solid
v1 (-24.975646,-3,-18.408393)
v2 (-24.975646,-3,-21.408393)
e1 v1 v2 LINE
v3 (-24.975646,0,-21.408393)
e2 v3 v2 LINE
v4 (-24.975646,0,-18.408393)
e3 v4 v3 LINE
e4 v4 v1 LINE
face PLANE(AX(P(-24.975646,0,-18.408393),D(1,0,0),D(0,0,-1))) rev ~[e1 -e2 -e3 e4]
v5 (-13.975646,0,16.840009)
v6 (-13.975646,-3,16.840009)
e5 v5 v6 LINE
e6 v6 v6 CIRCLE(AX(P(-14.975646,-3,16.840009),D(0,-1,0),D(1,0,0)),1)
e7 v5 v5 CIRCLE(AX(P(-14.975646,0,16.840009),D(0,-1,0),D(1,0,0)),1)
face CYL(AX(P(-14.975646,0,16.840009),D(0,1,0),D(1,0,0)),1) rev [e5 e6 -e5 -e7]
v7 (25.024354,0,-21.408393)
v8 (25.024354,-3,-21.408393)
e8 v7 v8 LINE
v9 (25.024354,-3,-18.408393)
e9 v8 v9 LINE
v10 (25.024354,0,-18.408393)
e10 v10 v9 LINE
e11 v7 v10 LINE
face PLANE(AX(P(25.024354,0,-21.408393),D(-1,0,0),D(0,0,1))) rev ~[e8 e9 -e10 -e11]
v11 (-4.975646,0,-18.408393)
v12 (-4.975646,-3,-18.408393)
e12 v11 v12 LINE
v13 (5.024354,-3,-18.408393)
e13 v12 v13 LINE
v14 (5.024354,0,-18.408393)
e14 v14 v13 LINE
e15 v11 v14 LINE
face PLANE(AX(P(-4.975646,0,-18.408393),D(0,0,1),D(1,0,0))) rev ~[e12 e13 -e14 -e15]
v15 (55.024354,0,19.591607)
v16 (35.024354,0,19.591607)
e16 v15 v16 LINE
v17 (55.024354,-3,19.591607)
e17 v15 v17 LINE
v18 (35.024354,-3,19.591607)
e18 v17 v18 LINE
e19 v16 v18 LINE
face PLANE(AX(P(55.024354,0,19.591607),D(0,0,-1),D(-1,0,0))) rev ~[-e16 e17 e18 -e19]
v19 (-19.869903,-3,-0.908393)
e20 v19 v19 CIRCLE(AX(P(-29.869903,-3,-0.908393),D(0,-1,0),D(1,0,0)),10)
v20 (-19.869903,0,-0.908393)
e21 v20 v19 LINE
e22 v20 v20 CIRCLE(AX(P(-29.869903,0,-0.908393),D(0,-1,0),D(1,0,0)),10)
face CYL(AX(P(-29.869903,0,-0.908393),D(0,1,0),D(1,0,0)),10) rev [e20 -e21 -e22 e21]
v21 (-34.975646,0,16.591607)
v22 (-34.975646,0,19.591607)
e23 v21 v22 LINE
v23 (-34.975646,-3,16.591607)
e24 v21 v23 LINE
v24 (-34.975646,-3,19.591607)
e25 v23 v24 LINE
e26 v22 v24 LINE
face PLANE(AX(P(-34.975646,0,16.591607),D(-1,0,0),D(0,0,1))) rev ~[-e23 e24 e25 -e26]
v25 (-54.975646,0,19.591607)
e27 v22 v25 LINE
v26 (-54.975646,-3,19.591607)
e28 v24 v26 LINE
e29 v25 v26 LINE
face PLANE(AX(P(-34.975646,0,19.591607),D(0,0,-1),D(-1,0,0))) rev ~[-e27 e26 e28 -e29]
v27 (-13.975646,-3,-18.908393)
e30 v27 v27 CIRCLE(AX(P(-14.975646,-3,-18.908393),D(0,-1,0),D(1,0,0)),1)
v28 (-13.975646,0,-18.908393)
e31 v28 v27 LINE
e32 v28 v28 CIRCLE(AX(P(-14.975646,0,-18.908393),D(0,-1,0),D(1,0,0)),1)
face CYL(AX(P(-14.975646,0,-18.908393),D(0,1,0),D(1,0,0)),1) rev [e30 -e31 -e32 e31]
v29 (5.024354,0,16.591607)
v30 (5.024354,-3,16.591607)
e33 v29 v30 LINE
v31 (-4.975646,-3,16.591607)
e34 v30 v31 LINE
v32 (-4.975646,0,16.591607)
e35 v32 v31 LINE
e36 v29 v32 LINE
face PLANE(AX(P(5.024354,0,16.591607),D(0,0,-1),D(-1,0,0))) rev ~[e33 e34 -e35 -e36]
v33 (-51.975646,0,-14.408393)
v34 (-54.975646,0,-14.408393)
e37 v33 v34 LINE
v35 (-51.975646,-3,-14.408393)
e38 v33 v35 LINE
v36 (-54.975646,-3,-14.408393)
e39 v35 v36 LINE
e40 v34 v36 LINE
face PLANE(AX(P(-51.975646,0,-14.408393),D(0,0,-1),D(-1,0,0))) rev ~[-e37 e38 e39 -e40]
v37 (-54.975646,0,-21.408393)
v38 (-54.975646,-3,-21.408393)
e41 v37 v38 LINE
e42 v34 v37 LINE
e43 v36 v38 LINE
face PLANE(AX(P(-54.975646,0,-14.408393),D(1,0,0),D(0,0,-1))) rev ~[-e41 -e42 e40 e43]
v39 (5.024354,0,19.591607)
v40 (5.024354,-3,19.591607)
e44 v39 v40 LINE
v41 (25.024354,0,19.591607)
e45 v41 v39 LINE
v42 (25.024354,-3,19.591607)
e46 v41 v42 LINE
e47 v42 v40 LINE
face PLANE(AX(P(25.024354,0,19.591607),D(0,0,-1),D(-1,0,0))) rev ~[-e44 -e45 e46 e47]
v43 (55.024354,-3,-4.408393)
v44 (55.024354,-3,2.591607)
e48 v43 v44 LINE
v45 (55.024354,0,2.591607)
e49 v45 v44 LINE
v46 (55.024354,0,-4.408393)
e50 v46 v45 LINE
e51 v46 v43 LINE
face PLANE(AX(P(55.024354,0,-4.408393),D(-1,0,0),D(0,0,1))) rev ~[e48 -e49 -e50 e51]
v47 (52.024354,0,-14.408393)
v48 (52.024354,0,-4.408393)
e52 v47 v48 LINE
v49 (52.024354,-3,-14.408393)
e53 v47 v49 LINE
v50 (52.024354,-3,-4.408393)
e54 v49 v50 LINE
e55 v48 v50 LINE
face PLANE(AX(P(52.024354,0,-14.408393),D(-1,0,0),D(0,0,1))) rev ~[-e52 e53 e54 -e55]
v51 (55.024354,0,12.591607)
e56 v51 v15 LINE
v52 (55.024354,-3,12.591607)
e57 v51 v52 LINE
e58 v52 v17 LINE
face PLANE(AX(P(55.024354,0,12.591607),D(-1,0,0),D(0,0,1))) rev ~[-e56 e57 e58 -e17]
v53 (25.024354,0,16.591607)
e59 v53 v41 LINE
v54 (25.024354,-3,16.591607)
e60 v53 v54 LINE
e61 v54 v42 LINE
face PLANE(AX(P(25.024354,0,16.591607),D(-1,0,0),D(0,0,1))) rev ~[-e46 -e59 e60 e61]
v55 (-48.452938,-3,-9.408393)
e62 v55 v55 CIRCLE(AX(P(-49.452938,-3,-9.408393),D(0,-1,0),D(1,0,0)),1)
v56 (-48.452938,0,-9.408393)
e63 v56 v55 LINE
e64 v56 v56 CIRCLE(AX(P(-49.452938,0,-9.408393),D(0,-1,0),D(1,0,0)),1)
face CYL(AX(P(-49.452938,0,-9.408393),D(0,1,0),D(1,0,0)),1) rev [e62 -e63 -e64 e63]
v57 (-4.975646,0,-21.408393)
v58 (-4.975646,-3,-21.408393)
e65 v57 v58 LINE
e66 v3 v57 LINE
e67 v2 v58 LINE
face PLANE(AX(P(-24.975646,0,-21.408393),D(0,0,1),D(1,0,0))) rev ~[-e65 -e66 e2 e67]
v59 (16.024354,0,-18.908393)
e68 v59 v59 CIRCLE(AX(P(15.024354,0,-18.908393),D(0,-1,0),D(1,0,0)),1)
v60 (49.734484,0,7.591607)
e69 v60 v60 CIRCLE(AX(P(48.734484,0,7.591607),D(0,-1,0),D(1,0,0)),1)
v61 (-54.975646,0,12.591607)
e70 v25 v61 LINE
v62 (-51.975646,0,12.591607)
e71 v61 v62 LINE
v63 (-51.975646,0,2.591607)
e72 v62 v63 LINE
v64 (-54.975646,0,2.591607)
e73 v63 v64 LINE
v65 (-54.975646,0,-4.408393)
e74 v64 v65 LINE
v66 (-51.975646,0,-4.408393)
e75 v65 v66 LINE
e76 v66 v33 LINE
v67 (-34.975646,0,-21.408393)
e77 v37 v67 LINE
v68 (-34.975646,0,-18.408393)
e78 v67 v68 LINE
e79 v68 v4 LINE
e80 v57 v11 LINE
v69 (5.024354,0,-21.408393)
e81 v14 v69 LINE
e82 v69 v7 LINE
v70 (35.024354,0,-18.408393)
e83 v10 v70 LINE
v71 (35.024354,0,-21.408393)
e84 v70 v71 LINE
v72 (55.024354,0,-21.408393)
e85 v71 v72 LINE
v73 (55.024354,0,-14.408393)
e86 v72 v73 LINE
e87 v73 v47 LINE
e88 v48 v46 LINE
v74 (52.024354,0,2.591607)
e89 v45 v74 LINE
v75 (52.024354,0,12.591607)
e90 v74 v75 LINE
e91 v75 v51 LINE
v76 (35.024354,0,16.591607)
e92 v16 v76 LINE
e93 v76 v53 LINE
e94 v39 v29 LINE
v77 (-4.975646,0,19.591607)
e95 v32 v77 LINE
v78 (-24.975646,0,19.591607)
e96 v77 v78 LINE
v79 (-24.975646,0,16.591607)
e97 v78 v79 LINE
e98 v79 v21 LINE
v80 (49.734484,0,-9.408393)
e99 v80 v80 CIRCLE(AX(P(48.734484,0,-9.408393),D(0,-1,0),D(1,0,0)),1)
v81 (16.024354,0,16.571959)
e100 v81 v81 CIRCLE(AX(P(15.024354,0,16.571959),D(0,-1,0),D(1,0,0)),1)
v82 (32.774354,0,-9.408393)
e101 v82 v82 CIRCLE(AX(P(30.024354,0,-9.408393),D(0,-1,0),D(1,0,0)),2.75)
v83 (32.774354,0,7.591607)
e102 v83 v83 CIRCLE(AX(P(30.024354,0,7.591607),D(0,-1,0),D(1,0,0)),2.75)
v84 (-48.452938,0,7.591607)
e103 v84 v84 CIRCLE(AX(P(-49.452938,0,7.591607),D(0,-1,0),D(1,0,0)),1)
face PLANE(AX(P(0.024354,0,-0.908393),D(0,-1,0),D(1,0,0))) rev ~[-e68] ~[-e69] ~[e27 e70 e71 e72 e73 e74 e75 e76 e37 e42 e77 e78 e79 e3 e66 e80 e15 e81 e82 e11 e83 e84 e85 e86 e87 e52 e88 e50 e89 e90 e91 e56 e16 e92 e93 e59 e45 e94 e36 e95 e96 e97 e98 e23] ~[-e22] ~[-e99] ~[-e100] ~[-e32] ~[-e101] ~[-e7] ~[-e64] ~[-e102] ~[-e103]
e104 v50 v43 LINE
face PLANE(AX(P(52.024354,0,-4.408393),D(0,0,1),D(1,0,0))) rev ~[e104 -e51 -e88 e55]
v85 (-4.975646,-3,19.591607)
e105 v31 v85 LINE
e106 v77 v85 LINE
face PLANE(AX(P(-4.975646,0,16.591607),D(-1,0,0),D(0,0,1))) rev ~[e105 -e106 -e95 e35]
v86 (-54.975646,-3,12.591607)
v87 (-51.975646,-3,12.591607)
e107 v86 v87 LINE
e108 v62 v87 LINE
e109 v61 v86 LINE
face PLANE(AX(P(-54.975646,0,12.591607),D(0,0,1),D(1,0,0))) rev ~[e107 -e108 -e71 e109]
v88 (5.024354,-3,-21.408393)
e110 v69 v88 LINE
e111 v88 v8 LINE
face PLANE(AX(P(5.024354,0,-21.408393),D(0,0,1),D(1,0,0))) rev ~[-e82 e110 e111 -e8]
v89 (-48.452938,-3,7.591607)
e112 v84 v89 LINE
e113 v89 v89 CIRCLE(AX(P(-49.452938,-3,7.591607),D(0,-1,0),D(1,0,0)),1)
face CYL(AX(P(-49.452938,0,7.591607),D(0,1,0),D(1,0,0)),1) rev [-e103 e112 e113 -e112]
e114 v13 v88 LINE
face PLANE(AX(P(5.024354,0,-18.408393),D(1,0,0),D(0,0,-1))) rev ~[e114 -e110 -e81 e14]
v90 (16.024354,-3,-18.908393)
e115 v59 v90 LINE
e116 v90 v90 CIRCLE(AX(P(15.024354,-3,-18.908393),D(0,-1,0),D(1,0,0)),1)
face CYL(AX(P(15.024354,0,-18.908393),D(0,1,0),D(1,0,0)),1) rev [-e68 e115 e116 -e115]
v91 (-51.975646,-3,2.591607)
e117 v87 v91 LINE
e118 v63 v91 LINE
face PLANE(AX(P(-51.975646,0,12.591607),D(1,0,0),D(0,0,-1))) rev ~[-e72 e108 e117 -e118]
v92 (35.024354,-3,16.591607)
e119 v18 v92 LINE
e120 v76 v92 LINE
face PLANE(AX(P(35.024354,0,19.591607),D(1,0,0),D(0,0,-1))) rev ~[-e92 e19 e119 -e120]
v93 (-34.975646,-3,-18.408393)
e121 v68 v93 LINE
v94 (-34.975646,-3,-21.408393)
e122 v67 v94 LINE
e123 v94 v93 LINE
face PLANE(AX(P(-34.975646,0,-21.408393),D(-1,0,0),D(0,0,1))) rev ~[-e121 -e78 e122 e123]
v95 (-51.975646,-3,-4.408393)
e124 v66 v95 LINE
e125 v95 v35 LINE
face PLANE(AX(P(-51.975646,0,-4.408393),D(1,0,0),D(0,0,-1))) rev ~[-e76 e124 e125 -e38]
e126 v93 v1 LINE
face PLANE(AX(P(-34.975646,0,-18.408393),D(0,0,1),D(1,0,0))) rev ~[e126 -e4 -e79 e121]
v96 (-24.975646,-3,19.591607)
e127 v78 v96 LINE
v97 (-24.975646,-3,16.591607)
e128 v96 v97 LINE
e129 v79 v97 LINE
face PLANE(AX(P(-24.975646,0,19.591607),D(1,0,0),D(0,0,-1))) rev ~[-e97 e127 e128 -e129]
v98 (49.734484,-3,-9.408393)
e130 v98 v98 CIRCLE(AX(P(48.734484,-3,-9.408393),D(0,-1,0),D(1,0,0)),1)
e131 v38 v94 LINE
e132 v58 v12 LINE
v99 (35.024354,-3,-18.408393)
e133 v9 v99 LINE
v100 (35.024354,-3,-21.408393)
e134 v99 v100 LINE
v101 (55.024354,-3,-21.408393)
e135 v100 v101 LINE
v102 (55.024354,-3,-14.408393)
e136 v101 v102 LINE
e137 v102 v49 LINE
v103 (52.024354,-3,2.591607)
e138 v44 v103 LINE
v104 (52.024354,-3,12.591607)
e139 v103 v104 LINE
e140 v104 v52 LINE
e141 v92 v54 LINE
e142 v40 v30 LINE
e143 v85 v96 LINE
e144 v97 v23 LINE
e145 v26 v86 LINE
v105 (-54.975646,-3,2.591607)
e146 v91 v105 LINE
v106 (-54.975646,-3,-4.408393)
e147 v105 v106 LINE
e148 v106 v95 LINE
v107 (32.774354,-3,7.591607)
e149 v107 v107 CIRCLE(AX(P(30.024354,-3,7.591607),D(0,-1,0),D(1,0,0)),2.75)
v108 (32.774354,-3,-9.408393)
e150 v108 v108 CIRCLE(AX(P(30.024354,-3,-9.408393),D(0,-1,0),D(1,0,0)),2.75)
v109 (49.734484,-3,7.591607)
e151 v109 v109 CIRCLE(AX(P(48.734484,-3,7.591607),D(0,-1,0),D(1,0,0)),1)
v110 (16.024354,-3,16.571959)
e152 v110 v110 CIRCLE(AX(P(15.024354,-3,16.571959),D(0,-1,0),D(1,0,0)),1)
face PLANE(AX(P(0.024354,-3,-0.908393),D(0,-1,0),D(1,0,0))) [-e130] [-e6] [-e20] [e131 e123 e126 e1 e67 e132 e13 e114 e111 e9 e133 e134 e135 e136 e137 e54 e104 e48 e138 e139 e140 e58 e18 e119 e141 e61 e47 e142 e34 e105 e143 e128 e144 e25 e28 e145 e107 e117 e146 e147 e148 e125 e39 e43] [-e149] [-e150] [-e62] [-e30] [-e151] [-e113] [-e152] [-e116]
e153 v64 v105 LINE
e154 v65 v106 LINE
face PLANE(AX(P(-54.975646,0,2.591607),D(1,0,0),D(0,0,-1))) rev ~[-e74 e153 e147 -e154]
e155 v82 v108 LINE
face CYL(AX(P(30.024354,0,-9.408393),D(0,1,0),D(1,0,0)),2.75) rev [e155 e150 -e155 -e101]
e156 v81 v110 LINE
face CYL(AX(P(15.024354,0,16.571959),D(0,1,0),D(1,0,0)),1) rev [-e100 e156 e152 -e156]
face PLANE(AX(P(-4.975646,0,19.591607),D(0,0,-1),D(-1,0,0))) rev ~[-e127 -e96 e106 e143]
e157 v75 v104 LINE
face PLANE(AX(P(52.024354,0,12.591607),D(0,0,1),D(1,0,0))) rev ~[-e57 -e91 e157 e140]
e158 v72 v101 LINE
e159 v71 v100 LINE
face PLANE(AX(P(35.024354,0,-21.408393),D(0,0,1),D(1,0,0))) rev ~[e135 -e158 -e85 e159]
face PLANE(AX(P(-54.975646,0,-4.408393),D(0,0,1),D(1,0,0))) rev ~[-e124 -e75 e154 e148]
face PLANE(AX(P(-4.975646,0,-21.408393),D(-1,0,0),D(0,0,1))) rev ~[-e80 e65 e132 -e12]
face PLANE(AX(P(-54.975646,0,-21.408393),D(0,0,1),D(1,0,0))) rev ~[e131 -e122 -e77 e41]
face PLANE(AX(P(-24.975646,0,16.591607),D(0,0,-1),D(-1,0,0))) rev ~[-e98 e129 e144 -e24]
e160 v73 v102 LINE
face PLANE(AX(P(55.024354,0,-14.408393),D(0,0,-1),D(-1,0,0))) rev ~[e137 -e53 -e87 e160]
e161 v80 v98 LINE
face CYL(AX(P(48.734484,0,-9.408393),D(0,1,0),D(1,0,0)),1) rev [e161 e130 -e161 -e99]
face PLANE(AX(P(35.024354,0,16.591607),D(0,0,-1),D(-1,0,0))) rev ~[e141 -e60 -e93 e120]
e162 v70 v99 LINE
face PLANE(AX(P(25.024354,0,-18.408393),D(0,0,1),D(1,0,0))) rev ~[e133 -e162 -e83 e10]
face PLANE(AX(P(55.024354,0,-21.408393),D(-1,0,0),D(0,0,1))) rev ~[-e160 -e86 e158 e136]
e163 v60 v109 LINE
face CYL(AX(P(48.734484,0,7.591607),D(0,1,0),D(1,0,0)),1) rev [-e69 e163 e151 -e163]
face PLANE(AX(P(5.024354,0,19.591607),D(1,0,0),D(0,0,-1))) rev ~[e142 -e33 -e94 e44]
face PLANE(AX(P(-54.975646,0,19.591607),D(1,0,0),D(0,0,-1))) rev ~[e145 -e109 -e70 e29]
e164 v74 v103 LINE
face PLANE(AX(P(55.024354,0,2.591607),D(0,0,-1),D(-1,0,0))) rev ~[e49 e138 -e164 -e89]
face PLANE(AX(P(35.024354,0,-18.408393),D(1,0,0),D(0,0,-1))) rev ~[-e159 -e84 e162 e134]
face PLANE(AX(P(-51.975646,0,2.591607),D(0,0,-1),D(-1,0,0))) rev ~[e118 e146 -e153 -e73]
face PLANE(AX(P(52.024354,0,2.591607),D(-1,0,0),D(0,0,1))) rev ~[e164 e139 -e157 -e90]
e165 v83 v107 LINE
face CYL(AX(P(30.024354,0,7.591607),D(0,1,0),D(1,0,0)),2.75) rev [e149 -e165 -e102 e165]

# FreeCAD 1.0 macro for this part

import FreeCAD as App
import Part
import Sketcher

V = App.Vector


def add_polygon(sketch, points):
    """Adds a closed chain of lines whose ends are joined by coincident constraints."""
    first, n = sketch.GeometryCount, len(points)
    for a, b in zip(points, points[1:] + points[:1]):
        sketch.addGeometry(Part.LineSegment(App.Vector(*a, 0), App.Vector(*b, 0)), False)
    for i in range(n):
        sketch.addConstraint(Sketcher.Constraint("Coincident", first + i, 2, first + (i + 1) % n, 1))

doc = App.newDocument("Part")
body = doc.addObject("PartDesign::Body", "Body")

sketch1 = body.newObject("Sketcher::SketchObject", "Sketch")
sketch1.AttachmentSupport = (doc.getObject("XZ_Plane"), [""])
sketch1.MapMode = "FlatFace"
add_polygon(sketch1, [(-51.975646, 2.591607), (-54.975646, 2.591607), (-54.975646, -4.408393), (-51.975646, -4.408393), (-51.975646, -14.408393), (-54.975646, -14.408393), (-54.975646, -21.408393), (-34.975646, -21.408393), (-34.975646, -18.408393), (-24.975646, -18.408393), (-24.975646, -21.408393), (-4.975646, -21.408393), (-4.975646, -18.408393), (5.024354, -18.408393), (5.024354, -21.408393), (25.024354, -21.408393), (25.024354, -18.408393), (35.024354, -18.408393), (35.024354, -21.408393), (55.024354, -21.408393), (55.024354, -14.408393), (52.024354, -14.408393), (52.024354, -4.408393), (55.024354, -4.408393), (55.024354, 2.591607), (52.024354, 2.591607), (52.024354, 12.591607), (55.024354, 12.591607), (55.024354, 19.591607), (35.024354, 19.591607), (35.024354, 16.591607), (25.024354, 16.591607), (25.024354, 19.591607), (5.024354, 19.591607), (5.024354, 16.591607), (-4.975646, 16.591607), (-4.975646, 19.591607), (-24.975646, 19.591607), (-24.975646, 16.591607), (-34.975646, 16.591607), (-34.975646, 19.591607), (-54.975646, 19.591607), (-54.975646, 12.591607), (-51.975646, 12.591607)])
sketch1.addGeometry(Part.Circle(V(-14.975646, -18.908393, 0), V(0, 0, 1), 1), False)
sketch1.addGeometry(Part.Circle(V(-49.452938, -9.408393, 0), V(0, 0, 1), 1), False)
sketch1.addGeometry(Part.Circle(V(15.024354, -18.908393, 0), V(0, 0, 1), 1), False)
sketch1.addGeometry(Part.Circle(V(30.024354, -9.408393, 0), V(0, 0, 1), 2.75), False)
sketch1.addGeometry(Part.Circle(V(48.734484, -9.408393, 0), V(0, 0, 1), 1), False)
sketch1.addGeometry(Part.Circle(V(-29.869903, -0.908393, 0), V(0, 0, 1), 10), False)
sketch1.addGeometry(Part.Circle(V(-49.452938, 7.591607, 0), V(0, 0, 1), 1), False)
sketch1.addGeometry(Part.Circle(V(-14.975646, 16.840009, 0), V(0, 0, 1), 1), False)
sketch1.addGeometry(Part.Circle(V(30.024354, 7.591607, 0), V(0, 0, 1), 2.75), False)
sketch1.addGeometry(Part.Circle(V(48.734484, 7.591607, 0), V(0, 0, 1), 1), False)
sketch1.addGeometry(Part.Circle(V(15.024354, 16.571959, 0), V(0, 0, 1), 1), False)
sketch1.addConstraint(Sketcher.Constraint("Horizontal", 0))
sketch1.addConstraint(Sketcher.Constraint("Vertical", 1))
sketch1.addConstraint(Sketcher.Constraint("Horizontal", 2))
sketch1.addConstraint(Sketcher.Constraint("Vertical", 3))
sketch1.addConstraint(Sketcher.Constraint("Horizontal", 4))
sketch1.addConstraint(Sketcher.Constraint("Vertical", 5))
sketch1.addConstraint(Sketcher.Constraint("Horizontal", 6))
sketch1.addConstraint(Sketcher.Constraint("Vertical", 7))
sketch1.addConstraint(Sketcher.Constraint("Horizontal", 8))
sketch1.addConstraint(Sketcher.Constraint("Vertical", 9))
sketch1.addConstraint(Sketcher.Constraint("Horizontal", 10))
sketch1.addConstraint(Sketcher.Constraint("Vertical", 11))
sketch1.addConstraint(Sketcher.Constraint("Horizontal", 12))
sketch1.addConstraint(Sketcher.Constraint("Vertical", 13))
sketch1.addConstraint(Sketcher.Constraint("Horizontal", 14))
sketch1.addConstraint(Sketcher.Constraint("Vertical", 15))
sketch1.addConstraint(Sketcher.Constraint("Horizontal", 16))
sketch1.addConstraint(Sketcher.Constraint("Vertical", 17))
sketch1.addConstraint(Sketcher.Constraint("Horizontal", 18))
sketch1.addConstraint(Sketcher.Constraint("Vertical", 19))
sketch1.addConstraint(Sketcher.Constraint("Horizontal", 20))
sketch1.addConstraint(Sketcher.Constraint("Vertical", 21))
sketch1.addConstraint(Sketcher.Constraint("Horizontal", 22))
sketch1.addConstraint(Sketcher.Constraint("Vertical", 23))
sketch1.addConstraint(Sketcher.Constraint("Horizontal", 24))
sketch1.addConstraint(Sketcher.Constraint("Vertical", 25))
sketch1.addConstraint(Sketcher.Constraint("Horizontal", 26))
sketch1.addConstraint(Sketcher.Constraint("Vertical", 27))
sketch1.addConstraint(Sketcher.Constraint("Horizontal", 28))
sketch1.addConstraint(Sketcher.Constraint("Vertical", 29))
sketch1.addConstraint(Sketcher.Constraint("Horizontal", 30))
sketch1.addConstraint(Sketcher.Constraint("Vertical", 31))
sketch1.addConstraint(Sketcher.Constraint("Horizontal", 32))
sketch1.addConstraint(Sketcher.Constraint("Vertical", 33))
sketch1.addConstraint(Sketcher.Constraint("Horizontal", 34))
sketch1.addConstraint(Sketcher.Constraint("Vertical", 35))
sketch1.addConstraint(Sketcher.Constraint("Horizontal", 36))
sketch1.addConstraint(Sketcher.Constraint("Vertical", 37))
sketch1.addConstraint(Sketcher.Constraint("Horizontal", 38))
sketch1.addConstraint(Sketcher.Constraint("Vertical", 39))
sketch1.addConstraint(Sketcher.Constraint("Horizontal", 40))
sketch1.addConstraint(Sketcher.Constraint("Vertical", 41))
sketch1.addConstraint(Sketcher.Constraint("Horizontal", 42))
sketch1.addConstraint(Sketcher.Constraint("Vertical", 43))
sketch1.addConstraint(Sketcher.Constraint("Equal", 44, 45))
sketch1.addConstraint(Sketcher.Constraint("Equal", 45, 46))
sketch1.addConstraint(Sketcher.Constraint("Equal", 46, 48))
sketch1.addConstraint(Sketcher.Constraint("Equal", 48, 50))
sketch1.addConstraint(Sketcher.Constraint("Equal", 50, 51))
sketch1.addConstraint(Sketcher.Constraint("Equal", 47, 52))
sketch1.addConstraint(Sketcher.Constraint("Equal", 51, 53))
sketch1.addConstraint(Sketcher.Constraint("Equal", 53, 54))
sketch1.addConstraint(Sketcher.Constraint("Horizontal", 44, 3, 46, 3))
sketch1.addConstraint(Sketcher.Constraint("Horizontal", 45, 3, 47, 3))
sketch1.addConstraint(Sketcher.Constraint("Horizontal", 47, 3, 48, 3))
sketch1.addConstraint(Sketcher.Constraint("Horizontal", 50, 3, 52, 3))
sketch1.addConstraint(Sketcher.Constraint("Horizontal", 52, 3, 53, 3))
sketch1.addConstraint(Sketcher.Constraint("Horizontal", 6, 2, 9, 2))
sketch1.addConstraint(Sketcher.Constraint("Horizontal", 8, 2, 11, 2))
sketch1.addConstraint(Sketcher.Constraint("Horizontal", 10, 2, 13, 2))
sketch1.addConstraint(Sketcher.Constraint("Horizontal", 12, 2, 15, 2))
sketch1.addConstraint(Sketcher.Constraint("Horizontal", 14, 2, 17, 2))
sketch1.addConstraint(Sketcher.Constraint("Horizontal", 4, 2, 19, 2))
sketch1.addConstraint(Sketcher.Constraint("Horizontal", 2, 2, 21, 2))
sketch1.addConstraint(Sketcher.Constraint("Horizontal", 0, 2, 23, 2))
sketch1.addConstraint(Sketcher.Constraint("Horizontal", 28, 2, 31, 2))
sketch1.addConstraint(Sketcher.Constraint("Horizontal", 30, 2, 33, 2))
sketch1.addConstraint(Sketcher.Constraint("Horizontal", 32, 2, 35, 2))
sketch1.addConstraint(Sketcher.Constraint("Horizontal", 34, 2, 37, 2))
sketch1.addConstraint(Sketcher.Constraint("Horizontal", 36, 2, 39, 2))
sketch1.addConstraint(Sketcher.Constraint("Horizontal", 26, 2, 41, 2))
sketch1.addConstraint(Sketcher.Constraint("Vertical", 45, 3, 50, 3))
sketch1.addConstraint(Sketcher.Constraint("Vertical", 44, 3, 51, 3))
sketch1.addConstraint(Sketcher.Constraint("Vertical", 47, 3, 52, 3))
sketch1.addConstraint(Sketcher.Constraint("Vertical", 48, 3, 53, 3))
sketch1.addConstraint(Sketcher.Constraint("Vertical", 46, 3, 54, 3))
sketch1.addConstraint(Sketcher.Constraint("Vertical", 1, 2, 4, 2))
sketch1.addConstraint(Sketcher.Constraint("Vertical", 19, 2, 22, 2))
sketch1.addConstraint(Sketcher.Constraint("Vertical", 21, 2, 24, 2))
sketch1.addConstraint(Sketcher.Constraint("Vertical", 23, 2, 26, 2))
sketch1.addConstraint(Sketcher.Constraint("Vertical", 17, 2, 28, 2))
sketch1.addConstraint(Sketcher.Constraint("Vertical", 15, 2, 30, 2))
sketch1.addConstraint(Sketcher.Constraint("Vertical", 13, 2, 32, 2))
sketch1.addConstraint(Sketcher.Constraint("Vertical", 11, 2, 34, 2))
sketch1.addConstraint(Sketcher.Constraint("Vertical", 9, 2, 36, 2))
sketch1.addConstraint(Sketcher.Constraint("Vertical", 7, 2, 38, 2))
sketch1.addConstraint(Sketcher.Constraint("Vertical", 5, 2, 40, 2))
sketch1.addConstraint(Sketcher.Constraint("Vertical", 3, 2, 42, 2))
sketch1.addConstraint(Sketcher.Constraint("Equal", 6, 10))
sketch1.addConstraint(Sketcher.Constraint("Equal", 8, 12))
sketch1.addConstraint(Sketcher.Constraint("Equal", 10, 14))
sketch1.addConstraint(Sketcher.Constraint("Equal", 12, 16))
sketch1.addConstraint(Sketcher.Constraint("Equal", 14, 18))
sketch1.addConstraint(Sketcher.Constraint("Equal", 4, 20))
sketch1.addConstraint(Sketcher.Constraint("Equal", 38, 3))
sketch1.addConstraint(Sketcher.Constraint("Equal", 1, 5))
sketch1.addConstraint(Sketcher.Constraint("Equal", 42, 7))
sketch1.addConstraint(Sketcher.Constraint("Equal", 21, 25))
sketch1.addConstraint(Sketcher.Constraint("Equal", 23, 27))
sketch1.addConstraint(Sketcher.Constraint("Equal", 17, 29))
sketch1.addConstraint(Sketcher.Constraint("Diameter", 44, 2.0))
sketch1.addConstraint(Sketcher.Constraint("Diameter", 49, 20.0))
sketch1.addConstraint(Sketcher.Constraint("Diameter", 47, 5.5))
sketch1.addConstraint(Sketcher.Constraint("DistanceX", 0, 2, 0, 1, 3.0))
sketch1.addConstraint(Sketcher.Constraint("DistanceX", 6, 1, 6, 2, 20.0))
sketch1.addConstraint(Sketcher.Constraint("DistanceX", 8, 1, 8, 2, 10.0))
sketch1.addConstraint(Sketcher.Constraint("DistanceY", 1, 2, 1, 1, 7.0))
sketch1.addConstraint(Sketcher.Constraint("DistanceX", 44, 3, 46, 3, 30.0))
sketch1.addConstraint(Sketcher.Constraint("DistanceX", 46, 3, 47, 3, 15.0))
sketch1.addConstraint(Sketcher.Constraint("DistanceY", 44, 3, 49, 3, 18.0))
sketch1.addConstraint(Sketcher.Constraint("DistanceY", 45, 3, 50, 3, 17.0))
sketch1.addConstraint(Sketcher.Constraint("DistanceY", 0, 2, 50, 3, 5.0))
sketch1.addConstraint(Sketcher.Constraint("DistanceX", 0, 2, 51, 3, 40.0))
sketch1.addConstraint(Sketcher.Constraint("DistanceY", 44, 3, 45, 3, 9.5))
sketch1.addConstraint(Sketcher.Constraint("DistanceY", 49, 3, 51, 3, 17.748402))
sketch1.addConstraint(Sketcher.Constraint("DistanceX", 45, 3, -1, 1, 49.452938))
sketch1.addConstraint(Sketcher.Constraint("DistanceY", -1, 1, 51, 3, 16.840009))
sketch1.addConstraint(Sketcher.Constraint("DistanceY", -1, 1, 54, 3, 16.571959))
sketch1.addConstraint(Sketcher.Constraint("DistanceX", 47, 3, 48, 3, 18.71013))
sketch1.addConstraint(Sketcher.Constraint("DistanceX", 45, 3, 48, 3, 98.187422))
sketch1.addConstraint(Sketcher.Constraint("DistanceX", 49, 3, -1, 1, 29.869903))
pad1 = body.newObject("PartDesign::Pad", "Pad")
pad1.Profile = sketch1
pad1.Length = 3

doc.recompute()
